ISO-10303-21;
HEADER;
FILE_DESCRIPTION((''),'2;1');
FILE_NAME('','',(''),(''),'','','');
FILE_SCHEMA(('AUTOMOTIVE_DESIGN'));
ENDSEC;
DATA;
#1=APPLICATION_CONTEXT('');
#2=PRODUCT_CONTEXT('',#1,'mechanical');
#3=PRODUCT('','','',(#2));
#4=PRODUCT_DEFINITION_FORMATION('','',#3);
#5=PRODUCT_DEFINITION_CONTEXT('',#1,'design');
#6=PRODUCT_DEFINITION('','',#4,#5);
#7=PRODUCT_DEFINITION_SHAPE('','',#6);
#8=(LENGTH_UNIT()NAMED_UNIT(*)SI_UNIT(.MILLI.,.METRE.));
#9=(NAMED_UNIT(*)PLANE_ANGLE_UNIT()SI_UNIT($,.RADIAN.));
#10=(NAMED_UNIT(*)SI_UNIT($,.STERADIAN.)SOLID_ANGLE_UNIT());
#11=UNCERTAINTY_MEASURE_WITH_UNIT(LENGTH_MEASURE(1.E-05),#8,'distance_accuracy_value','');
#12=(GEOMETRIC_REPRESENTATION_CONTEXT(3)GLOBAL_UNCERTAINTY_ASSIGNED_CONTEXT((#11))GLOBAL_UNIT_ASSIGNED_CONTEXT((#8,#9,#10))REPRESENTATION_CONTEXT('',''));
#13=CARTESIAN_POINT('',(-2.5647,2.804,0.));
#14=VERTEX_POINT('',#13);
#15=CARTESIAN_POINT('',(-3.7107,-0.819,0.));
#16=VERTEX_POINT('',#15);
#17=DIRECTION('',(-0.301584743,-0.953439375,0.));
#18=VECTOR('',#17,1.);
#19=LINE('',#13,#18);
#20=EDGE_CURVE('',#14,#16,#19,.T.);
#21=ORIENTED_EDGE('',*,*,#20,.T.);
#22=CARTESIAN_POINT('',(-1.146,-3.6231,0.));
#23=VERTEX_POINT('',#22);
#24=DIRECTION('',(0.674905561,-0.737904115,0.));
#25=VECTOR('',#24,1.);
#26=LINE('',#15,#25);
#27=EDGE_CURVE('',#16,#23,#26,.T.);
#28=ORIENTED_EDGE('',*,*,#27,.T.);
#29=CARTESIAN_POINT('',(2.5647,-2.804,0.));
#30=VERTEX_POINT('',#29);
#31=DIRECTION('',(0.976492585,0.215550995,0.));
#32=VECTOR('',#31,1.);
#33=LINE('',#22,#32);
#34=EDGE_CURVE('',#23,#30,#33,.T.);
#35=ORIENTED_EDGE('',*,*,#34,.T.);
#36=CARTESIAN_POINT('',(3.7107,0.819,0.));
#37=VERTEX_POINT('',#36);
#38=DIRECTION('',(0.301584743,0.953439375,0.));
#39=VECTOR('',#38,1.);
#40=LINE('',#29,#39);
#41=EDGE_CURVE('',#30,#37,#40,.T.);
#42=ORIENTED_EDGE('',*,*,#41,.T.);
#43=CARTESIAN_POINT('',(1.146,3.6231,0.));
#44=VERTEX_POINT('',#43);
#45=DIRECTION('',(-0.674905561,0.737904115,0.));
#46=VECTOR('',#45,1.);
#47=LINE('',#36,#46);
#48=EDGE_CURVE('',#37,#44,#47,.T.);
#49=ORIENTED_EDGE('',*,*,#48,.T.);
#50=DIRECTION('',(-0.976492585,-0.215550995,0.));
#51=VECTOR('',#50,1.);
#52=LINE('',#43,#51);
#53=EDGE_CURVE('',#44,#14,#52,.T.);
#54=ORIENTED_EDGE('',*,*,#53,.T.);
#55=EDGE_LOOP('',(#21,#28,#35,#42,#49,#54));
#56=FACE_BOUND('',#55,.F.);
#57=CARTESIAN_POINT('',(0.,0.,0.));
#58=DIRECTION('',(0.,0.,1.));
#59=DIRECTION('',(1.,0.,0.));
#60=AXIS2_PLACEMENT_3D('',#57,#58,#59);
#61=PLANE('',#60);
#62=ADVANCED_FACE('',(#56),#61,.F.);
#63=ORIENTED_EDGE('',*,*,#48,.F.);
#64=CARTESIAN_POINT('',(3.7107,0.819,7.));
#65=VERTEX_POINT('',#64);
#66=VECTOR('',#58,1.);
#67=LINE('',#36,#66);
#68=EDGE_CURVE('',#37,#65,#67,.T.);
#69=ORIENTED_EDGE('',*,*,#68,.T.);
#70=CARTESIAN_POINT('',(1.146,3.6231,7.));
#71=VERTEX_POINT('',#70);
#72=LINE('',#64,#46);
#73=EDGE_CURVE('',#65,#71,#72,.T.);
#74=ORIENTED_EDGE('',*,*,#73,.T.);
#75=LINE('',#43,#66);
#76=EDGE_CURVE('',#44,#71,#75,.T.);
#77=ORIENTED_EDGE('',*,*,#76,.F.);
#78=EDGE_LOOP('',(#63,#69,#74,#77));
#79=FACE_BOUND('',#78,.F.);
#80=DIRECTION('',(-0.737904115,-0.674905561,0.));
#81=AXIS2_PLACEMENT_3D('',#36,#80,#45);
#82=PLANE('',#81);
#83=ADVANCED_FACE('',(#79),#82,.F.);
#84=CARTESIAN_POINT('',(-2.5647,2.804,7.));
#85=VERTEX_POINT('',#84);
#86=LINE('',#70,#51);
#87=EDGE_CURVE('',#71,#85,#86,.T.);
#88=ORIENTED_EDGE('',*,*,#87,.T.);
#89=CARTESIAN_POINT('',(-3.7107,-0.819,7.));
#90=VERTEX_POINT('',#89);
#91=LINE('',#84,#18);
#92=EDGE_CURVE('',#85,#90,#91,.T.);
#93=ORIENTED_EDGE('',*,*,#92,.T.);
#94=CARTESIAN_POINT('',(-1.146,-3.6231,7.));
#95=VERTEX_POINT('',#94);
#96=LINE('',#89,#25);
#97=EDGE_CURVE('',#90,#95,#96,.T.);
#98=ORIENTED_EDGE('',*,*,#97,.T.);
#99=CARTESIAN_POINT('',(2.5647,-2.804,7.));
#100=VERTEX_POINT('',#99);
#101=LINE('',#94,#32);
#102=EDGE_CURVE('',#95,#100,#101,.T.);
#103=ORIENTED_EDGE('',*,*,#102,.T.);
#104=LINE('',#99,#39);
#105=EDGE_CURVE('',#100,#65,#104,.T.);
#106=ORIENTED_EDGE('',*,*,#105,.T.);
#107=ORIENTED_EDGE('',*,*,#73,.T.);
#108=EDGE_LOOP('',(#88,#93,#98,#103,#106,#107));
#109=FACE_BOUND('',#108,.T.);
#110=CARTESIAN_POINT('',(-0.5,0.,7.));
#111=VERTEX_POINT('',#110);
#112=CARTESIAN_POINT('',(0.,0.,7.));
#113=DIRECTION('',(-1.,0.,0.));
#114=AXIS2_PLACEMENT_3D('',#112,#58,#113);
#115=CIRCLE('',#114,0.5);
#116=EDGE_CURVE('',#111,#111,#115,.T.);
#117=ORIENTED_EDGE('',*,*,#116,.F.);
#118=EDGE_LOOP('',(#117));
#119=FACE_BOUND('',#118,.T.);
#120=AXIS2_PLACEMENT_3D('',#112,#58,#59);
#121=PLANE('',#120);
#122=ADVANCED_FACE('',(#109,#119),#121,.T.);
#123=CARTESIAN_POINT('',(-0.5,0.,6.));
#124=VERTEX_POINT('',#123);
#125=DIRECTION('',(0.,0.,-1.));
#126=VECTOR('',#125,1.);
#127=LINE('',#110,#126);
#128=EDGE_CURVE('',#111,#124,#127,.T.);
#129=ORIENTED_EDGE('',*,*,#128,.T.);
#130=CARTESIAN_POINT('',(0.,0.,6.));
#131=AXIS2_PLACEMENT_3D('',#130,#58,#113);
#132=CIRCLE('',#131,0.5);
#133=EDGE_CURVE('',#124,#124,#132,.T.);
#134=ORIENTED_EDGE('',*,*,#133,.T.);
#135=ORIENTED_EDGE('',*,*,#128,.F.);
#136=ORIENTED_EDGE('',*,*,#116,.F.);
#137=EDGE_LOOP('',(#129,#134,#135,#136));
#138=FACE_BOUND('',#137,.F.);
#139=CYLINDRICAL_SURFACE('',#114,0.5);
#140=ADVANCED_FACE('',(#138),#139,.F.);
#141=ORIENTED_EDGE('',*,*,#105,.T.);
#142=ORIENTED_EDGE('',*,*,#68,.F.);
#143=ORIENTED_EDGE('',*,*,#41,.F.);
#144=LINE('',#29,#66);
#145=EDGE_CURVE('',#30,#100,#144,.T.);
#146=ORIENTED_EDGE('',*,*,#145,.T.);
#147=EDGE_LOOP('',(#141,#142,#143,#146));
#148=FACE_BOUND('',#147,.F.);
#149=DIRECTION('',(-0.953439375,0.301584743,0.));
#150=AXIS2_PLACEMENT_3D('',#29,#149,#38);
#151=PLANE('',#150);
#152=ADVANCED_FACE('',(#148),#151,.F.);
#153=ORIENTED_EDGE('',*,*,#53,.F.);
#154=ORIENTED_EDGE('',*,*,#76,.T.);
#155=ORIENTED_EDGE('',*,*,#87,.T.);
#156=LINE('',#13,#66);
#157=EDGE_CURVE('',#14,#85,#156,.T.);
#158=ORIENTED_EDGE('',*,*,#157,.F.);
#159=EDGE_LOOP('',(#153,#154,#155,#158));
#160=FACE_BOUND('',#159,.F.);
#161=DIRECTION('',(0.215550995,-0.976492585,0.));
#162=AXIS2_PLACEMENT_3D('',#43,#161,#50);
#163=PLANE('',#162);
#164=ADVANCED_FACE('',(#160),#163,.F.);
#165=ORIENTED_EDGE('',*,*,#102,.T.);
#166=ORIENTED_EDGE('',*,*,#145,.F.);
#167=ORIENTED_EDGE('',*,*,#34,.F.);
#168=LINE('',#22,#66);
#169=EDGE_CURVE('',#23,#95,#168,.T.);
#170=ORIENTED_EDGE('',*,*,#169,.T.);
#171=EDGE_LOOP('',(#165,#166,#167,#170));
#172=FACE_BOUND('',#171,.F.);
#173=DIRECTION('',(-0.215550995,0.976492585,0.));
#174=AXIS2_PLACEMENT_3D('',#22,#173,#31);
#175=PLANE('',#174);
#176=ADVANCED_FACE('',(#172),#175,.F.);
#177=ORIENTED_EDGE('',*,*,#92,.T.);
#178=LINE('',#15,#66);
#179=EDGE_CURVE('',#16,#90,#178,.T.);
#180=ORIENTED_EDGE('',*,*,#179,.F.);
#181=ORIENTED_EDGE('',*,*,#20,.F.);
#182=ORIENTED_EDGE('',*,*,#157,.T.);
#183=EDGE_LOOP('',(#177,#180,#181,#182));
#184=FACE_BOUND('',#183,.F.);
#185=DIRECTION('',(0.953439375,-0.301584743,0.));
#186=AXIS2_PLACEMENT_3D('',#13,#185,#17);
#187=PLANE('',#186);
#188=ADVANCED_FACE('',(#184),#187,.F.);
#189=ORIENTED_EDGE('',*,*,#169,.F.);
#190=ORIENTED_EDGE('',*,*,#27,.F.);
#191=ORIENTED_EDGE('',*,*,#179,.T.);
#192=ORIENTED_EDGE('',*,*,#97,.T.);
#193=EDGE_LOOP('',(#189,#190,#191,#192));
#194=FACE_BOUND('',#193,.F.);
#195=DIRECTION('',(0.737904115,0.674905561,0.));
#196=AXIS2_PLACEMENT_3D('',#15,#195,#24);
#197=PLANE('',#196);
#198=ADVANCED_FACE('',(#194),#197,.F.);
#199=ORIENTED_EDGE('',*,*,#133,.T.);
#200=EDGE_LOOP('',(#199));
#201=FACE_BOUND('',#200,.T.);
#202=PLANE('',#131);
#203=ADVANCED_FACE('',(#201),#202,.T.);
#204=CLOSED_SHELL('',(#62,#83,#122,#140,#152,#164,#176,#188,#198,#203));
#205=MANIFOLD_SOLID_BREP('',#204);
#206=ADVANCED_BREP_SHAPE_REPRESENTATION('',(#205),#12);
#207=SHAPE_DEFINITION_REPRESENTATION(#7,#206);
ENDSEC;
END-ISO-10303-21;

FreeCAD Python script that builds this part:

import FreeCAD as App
import Part
import Sketcher
Q = App.Units.Quantity

doc = App.newDocument("Part")
body = doc.addObject("PartDesign::Body", "Body")

# Sketch on XY plane
sketch1 = doc.addObject("Sketcher::SketchObject", "Sketch")
body.addObject(sketch1)
sketch1.AttachmentSupport = (doc.XY_Plane, [""])
sketch1.MapMode = "FlatFace"
sketch1.addGeometry([
    Part.LineSegment(App.Vector(-1.1, -3.6, 0), App.Vector(2.6, -2.8, 0)),  # 0
    Part.LineSegment(App.Vector(2.6, -2.8, 0), App.Vector(3.7, 0.8, 0)),  # 1
    Part.LineSegment(App.Vector(3.7, 0.8, 0), App.Vector(1.1, 3.6, 0)),  # 2
    Part.LineSegment(App.Vector(1.1, 3.6, 0), App.Vector(-2.6, 2.8, 0)),  # 3
    Part.LineSegment(App.Vector(-2.6, 2.8, 0), App.Vector(-3.7, -0.8, 0)),  # 4
    Part.LineSegment(App.Vector(-3.7, -0.8, 0), App.Vector(-1.1, -3.6, 0)),  # 5
], False)
sketch1.addConstraint([
    Sketcher.Constraint("Coincident", 0, 2, 1, 1),
    Sketcher.Constraint("Coincident", 1, 2, 2, 1),
    Sketcher.Constraint("Coincident", 2, 2, 3, 1),
    Sketcher.Constraint("Coincident", 3, 2, 4, 1),
    Sketcher.Constraint("Coincident", 4, 2, 5, 1),
    Sketcher.Constraint("Coincident", 5, 2, 0, 1),
    Sketcher.Constraint("Symmetric", 0, 2, 3, 2, -1, 1),
    Sketcher.Constraint("Symmetric", 1, 2, 4, 2, -1, 1),
    Sketcher.Constraint("Symmetric", 2, 2, 5, 2, -1, 1),
    Sketcher.Constraint("Equal", 0, 1),
    Sketcher.Constraint("Equal", 1, 2),
    Sketcher.Constraint("Distance", 0, Q("3.8 mm")),
    Sketcher.Constraint("DistanceY", 0, 2, -1, 1, Q("2.804 mm")),
    Sketcher.Constraint("DistanceY", -1, 1, 1, 2, Q("0.819 mm")),
    Sketcher.Constraint("DistanceX", -1, 1, 2, 2, Q("1.146 mm")),
])
pad1 = doc.addObject("PartDesign::Pad", "Pad")
body.addObject(pad1)
pad1.Profile = sketch1
pad1.Length = 7

# Sketch on XY plane
sketch2 = doc.addObject("Sketcher::SketchObject", "Sketch001")
body.addObject(sketch2)
sketch2.AttachmentSupport = (doc.XY_Plane, [""])
sketch2.MapMode = "FlatFace"
sketch2.AttachmentOffset = App.Placement(App.Vector(0, 0, 7), App.Rotation())
sketch2.addGeometry(Part.Circle(App.Vector(0, 0, 0), App.Vector(0, 0, 1), 0.5), False)
sketch2.addConstraint([
    Sketcher.Constraint("Coincident", 0, 3, -1, 1),
    Sketcher.Constraint("Diameter", 0, Q("1 mm")),
])
pocket1 = doc.addObject("PartDesign::Pocket", "Pocket")
body.addObject(pocket1)
pocket1.Profile = sketch2
pocket1.Length = 1

doc.recompute()
